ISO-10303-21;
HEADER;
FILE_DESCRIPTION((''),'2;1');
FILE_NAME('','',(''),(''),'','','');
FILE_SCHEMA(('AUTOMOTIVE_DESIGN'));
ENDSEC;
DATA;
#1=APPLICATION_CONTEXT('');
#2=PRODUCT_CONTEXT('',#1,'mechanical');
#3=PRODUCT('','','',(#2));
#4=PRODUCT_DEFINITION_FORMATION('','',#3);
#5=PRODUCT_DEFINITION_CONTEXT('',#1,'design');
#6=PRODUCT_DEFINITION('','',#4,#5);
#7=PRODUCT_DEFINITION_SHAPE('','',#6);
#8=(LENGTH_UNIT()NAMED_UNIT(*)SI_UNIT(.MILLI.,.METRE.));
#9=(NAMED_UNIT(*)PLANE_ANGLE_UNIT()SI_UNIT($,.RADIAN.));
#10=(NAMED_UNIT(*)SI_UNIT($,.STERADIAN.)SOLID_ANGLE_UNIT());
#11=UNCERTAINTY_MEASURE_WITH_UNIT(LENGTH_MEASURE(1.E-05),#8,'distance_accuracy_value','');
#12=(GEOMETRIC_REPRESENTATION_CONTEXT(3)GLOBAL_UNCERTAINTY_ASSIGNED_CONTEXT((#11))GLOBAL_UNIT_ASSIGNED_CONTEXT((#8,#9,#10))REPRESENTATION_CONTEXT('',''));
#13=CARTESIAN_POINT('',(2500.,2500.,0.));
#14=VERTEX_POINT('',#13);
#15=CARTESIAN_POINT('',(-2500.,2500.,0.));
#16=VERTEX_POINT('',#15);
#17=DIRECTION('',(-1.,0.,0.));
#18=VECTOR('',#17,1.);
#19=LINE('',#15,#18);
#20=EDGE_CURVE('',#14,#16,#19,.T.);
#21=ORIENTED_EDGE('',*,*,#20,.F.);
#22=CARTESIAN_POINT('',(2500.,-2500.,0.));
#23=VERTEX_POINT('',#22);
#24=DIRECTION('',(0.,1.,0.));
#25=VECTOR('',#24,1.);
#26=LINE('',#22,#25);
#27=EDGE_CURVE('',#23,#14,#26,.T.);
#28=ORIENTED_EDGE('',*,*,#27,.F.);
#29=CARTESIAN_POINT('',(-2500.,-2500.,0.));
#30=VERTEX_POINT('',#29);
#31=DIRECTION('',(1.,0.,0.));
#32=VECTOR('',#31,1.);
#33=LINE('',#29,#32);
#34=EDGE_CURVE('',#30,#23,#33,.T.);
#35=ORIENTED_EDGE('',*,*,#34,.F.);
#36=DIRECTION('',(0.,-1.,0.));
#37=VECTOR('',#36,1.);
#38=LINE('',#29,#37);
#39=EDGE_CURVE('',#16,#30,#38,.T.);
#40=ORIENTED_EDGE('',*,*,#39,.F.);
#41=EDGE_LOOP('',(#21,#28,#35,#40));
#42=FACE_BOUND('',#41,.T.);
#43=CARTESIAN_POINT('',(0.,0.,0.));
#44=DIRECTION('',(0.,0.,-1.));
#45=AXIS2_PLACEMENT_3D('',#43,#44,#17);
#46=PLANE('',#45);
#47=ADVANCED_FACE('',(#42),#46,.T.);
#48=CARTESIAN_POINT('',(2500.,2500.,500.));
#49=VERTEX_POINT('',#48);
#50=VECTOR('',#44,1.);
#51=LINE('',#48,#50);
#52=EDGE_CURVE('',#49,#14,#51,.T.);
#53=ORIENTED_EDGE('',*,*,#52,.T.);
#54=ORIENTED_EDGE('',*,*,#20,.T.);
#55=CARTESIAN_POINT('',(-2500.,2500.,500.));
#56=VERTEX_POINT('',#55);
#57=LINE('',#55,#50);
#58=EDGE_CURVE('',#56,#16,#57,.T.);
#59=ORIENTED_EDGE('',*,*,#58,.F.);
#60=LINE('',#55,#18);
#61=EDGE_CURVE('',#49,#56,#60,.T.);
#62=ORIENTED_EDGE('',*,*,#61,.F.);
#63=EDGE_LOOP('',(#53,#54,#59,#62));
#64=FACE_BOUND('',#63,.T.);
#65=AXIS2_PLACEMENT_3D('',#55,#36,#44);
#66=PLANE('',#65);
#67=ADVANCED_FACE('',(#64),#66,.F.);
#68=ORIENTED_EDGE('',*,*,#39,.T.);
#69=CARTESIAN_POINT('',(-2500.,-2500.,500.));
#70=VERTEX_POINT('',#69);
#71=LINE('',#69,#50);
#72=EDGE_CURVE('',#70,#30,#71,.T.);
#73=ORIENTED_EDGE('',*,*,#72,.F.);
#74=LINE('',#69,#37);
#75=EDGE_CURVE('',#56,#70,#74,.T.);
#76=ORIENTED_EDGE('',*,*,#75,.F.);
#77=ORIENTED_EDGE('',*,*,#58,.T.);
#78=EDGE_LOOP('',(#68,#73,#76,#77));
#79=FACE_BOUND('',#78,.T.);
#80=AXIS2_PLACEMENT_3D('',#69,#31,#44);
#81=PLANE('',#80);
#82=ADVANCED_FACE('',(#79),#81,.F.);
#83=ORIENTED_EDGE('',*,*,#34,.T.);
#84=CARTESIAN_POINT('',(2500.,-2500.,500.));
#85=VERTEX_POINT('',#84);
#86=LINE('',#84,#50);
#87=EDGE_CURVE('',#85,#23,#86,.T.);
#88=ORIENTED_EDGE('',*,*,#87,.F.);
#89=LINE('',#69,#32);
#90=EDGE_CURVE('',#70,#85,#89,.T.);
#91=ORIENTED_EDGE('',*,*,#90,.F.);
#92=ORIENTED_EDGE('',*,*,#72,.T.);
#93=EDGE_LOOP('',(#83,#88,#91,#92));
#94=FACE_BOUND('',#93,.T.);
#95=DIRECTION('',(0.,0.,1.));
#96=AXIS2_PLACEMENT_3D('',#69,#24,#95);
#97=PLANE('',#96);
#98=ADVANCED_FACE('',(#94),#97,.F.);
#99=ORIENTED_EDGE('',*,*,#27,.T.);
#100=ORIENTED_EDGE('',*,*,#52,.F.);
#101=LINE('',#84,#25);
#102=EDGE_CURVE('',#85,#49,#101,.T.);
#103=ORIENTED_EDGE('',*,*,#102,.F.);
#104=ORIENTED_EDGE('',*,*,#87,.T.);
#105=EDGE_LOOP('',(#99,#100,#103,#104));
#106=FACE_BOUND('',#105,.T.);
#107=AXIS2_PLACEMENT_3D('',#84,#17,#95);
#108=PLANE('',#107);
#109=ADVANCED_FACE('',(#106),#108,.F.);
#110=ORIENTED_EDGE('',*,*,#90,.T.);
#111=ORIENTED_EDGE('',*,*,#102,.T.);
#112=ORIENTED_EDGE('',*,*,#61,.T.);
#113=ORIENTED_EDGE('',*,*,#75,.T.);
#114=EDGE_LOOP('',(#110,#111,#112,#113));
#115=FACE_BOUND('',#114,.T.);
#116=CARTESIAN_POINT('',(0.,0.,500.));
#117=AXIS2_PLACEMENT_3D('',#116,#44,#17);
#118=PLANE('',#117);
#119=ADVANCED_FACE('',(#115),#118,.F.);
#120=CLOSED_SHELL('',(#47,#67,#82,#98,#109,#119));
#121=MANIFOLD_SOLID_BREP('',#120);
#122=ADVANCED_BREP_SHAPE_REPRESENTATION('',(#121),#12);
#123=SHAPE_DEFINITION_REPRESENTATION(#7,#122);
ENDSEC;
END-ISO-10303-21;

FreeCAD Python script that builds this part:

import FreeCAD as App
import Part
import Sketcher
from FreeCAD import Vector

doc = App.newDocument("Part")
body = doc.addObject("PartDesign::Body", "Body")

# Sketch on XY plane
sketch1 = body.newObject("Sketcher::SketchObject", "Sketch")
sketch1.AttachmentSupport = (doc.getObject("XY_Plane"), [""])
sketch1.MapMode = "FlatFace"
sketch1.addGeometry([
    Part.LineSegment(Vector(-2500, 2500, 0), Vector(-2500, -2500, 0)),
    Part.LineSegment(Vector(-2500, -2500, 0), Vector(2500, -2500, 0)),
    Part.LineSegment(Vector(2500, -2500, 0), Vector(2500, 2500, 0)),
    Part.LineSegment(Vector(2500, 2500, 0), Vector(-2500, 2500, 0)),
], False)
sketch1.addConstraint([
    Sketcher.Constraint("Coincident", 0, 2, 1, 1),
    Sketcher.Constraint("Coincident", 1, 2, 2, 1),
    Sketcher.Constraint("Coincident", 2, 2, 3, 1),
    Sketcher.Constraint("Coincident", 3, 2, 0, 1),
    Sketcher.Constraint("Vertical", 0),
    Sketcher.Constraint("Horizontal", 1),
    Sketcher.Constraint("Vertical", 2),
    Sketcher.Constraint("Horizontal", 3),
    Sketcher.Constraint("Symmetric", 0, 2, 2, 2, -1, 1),
    Sketcher.Constraint("Equal", 3, 0),
    Sketcher.Constraint("DistanceX", 1, 1, 1, 2, 5000.0),
])
pad1 = body.newObject("PartDesign::Pad", "Pad")
pad1.Profile = sketch1
pad1.Length = 500

doc.recompute()
